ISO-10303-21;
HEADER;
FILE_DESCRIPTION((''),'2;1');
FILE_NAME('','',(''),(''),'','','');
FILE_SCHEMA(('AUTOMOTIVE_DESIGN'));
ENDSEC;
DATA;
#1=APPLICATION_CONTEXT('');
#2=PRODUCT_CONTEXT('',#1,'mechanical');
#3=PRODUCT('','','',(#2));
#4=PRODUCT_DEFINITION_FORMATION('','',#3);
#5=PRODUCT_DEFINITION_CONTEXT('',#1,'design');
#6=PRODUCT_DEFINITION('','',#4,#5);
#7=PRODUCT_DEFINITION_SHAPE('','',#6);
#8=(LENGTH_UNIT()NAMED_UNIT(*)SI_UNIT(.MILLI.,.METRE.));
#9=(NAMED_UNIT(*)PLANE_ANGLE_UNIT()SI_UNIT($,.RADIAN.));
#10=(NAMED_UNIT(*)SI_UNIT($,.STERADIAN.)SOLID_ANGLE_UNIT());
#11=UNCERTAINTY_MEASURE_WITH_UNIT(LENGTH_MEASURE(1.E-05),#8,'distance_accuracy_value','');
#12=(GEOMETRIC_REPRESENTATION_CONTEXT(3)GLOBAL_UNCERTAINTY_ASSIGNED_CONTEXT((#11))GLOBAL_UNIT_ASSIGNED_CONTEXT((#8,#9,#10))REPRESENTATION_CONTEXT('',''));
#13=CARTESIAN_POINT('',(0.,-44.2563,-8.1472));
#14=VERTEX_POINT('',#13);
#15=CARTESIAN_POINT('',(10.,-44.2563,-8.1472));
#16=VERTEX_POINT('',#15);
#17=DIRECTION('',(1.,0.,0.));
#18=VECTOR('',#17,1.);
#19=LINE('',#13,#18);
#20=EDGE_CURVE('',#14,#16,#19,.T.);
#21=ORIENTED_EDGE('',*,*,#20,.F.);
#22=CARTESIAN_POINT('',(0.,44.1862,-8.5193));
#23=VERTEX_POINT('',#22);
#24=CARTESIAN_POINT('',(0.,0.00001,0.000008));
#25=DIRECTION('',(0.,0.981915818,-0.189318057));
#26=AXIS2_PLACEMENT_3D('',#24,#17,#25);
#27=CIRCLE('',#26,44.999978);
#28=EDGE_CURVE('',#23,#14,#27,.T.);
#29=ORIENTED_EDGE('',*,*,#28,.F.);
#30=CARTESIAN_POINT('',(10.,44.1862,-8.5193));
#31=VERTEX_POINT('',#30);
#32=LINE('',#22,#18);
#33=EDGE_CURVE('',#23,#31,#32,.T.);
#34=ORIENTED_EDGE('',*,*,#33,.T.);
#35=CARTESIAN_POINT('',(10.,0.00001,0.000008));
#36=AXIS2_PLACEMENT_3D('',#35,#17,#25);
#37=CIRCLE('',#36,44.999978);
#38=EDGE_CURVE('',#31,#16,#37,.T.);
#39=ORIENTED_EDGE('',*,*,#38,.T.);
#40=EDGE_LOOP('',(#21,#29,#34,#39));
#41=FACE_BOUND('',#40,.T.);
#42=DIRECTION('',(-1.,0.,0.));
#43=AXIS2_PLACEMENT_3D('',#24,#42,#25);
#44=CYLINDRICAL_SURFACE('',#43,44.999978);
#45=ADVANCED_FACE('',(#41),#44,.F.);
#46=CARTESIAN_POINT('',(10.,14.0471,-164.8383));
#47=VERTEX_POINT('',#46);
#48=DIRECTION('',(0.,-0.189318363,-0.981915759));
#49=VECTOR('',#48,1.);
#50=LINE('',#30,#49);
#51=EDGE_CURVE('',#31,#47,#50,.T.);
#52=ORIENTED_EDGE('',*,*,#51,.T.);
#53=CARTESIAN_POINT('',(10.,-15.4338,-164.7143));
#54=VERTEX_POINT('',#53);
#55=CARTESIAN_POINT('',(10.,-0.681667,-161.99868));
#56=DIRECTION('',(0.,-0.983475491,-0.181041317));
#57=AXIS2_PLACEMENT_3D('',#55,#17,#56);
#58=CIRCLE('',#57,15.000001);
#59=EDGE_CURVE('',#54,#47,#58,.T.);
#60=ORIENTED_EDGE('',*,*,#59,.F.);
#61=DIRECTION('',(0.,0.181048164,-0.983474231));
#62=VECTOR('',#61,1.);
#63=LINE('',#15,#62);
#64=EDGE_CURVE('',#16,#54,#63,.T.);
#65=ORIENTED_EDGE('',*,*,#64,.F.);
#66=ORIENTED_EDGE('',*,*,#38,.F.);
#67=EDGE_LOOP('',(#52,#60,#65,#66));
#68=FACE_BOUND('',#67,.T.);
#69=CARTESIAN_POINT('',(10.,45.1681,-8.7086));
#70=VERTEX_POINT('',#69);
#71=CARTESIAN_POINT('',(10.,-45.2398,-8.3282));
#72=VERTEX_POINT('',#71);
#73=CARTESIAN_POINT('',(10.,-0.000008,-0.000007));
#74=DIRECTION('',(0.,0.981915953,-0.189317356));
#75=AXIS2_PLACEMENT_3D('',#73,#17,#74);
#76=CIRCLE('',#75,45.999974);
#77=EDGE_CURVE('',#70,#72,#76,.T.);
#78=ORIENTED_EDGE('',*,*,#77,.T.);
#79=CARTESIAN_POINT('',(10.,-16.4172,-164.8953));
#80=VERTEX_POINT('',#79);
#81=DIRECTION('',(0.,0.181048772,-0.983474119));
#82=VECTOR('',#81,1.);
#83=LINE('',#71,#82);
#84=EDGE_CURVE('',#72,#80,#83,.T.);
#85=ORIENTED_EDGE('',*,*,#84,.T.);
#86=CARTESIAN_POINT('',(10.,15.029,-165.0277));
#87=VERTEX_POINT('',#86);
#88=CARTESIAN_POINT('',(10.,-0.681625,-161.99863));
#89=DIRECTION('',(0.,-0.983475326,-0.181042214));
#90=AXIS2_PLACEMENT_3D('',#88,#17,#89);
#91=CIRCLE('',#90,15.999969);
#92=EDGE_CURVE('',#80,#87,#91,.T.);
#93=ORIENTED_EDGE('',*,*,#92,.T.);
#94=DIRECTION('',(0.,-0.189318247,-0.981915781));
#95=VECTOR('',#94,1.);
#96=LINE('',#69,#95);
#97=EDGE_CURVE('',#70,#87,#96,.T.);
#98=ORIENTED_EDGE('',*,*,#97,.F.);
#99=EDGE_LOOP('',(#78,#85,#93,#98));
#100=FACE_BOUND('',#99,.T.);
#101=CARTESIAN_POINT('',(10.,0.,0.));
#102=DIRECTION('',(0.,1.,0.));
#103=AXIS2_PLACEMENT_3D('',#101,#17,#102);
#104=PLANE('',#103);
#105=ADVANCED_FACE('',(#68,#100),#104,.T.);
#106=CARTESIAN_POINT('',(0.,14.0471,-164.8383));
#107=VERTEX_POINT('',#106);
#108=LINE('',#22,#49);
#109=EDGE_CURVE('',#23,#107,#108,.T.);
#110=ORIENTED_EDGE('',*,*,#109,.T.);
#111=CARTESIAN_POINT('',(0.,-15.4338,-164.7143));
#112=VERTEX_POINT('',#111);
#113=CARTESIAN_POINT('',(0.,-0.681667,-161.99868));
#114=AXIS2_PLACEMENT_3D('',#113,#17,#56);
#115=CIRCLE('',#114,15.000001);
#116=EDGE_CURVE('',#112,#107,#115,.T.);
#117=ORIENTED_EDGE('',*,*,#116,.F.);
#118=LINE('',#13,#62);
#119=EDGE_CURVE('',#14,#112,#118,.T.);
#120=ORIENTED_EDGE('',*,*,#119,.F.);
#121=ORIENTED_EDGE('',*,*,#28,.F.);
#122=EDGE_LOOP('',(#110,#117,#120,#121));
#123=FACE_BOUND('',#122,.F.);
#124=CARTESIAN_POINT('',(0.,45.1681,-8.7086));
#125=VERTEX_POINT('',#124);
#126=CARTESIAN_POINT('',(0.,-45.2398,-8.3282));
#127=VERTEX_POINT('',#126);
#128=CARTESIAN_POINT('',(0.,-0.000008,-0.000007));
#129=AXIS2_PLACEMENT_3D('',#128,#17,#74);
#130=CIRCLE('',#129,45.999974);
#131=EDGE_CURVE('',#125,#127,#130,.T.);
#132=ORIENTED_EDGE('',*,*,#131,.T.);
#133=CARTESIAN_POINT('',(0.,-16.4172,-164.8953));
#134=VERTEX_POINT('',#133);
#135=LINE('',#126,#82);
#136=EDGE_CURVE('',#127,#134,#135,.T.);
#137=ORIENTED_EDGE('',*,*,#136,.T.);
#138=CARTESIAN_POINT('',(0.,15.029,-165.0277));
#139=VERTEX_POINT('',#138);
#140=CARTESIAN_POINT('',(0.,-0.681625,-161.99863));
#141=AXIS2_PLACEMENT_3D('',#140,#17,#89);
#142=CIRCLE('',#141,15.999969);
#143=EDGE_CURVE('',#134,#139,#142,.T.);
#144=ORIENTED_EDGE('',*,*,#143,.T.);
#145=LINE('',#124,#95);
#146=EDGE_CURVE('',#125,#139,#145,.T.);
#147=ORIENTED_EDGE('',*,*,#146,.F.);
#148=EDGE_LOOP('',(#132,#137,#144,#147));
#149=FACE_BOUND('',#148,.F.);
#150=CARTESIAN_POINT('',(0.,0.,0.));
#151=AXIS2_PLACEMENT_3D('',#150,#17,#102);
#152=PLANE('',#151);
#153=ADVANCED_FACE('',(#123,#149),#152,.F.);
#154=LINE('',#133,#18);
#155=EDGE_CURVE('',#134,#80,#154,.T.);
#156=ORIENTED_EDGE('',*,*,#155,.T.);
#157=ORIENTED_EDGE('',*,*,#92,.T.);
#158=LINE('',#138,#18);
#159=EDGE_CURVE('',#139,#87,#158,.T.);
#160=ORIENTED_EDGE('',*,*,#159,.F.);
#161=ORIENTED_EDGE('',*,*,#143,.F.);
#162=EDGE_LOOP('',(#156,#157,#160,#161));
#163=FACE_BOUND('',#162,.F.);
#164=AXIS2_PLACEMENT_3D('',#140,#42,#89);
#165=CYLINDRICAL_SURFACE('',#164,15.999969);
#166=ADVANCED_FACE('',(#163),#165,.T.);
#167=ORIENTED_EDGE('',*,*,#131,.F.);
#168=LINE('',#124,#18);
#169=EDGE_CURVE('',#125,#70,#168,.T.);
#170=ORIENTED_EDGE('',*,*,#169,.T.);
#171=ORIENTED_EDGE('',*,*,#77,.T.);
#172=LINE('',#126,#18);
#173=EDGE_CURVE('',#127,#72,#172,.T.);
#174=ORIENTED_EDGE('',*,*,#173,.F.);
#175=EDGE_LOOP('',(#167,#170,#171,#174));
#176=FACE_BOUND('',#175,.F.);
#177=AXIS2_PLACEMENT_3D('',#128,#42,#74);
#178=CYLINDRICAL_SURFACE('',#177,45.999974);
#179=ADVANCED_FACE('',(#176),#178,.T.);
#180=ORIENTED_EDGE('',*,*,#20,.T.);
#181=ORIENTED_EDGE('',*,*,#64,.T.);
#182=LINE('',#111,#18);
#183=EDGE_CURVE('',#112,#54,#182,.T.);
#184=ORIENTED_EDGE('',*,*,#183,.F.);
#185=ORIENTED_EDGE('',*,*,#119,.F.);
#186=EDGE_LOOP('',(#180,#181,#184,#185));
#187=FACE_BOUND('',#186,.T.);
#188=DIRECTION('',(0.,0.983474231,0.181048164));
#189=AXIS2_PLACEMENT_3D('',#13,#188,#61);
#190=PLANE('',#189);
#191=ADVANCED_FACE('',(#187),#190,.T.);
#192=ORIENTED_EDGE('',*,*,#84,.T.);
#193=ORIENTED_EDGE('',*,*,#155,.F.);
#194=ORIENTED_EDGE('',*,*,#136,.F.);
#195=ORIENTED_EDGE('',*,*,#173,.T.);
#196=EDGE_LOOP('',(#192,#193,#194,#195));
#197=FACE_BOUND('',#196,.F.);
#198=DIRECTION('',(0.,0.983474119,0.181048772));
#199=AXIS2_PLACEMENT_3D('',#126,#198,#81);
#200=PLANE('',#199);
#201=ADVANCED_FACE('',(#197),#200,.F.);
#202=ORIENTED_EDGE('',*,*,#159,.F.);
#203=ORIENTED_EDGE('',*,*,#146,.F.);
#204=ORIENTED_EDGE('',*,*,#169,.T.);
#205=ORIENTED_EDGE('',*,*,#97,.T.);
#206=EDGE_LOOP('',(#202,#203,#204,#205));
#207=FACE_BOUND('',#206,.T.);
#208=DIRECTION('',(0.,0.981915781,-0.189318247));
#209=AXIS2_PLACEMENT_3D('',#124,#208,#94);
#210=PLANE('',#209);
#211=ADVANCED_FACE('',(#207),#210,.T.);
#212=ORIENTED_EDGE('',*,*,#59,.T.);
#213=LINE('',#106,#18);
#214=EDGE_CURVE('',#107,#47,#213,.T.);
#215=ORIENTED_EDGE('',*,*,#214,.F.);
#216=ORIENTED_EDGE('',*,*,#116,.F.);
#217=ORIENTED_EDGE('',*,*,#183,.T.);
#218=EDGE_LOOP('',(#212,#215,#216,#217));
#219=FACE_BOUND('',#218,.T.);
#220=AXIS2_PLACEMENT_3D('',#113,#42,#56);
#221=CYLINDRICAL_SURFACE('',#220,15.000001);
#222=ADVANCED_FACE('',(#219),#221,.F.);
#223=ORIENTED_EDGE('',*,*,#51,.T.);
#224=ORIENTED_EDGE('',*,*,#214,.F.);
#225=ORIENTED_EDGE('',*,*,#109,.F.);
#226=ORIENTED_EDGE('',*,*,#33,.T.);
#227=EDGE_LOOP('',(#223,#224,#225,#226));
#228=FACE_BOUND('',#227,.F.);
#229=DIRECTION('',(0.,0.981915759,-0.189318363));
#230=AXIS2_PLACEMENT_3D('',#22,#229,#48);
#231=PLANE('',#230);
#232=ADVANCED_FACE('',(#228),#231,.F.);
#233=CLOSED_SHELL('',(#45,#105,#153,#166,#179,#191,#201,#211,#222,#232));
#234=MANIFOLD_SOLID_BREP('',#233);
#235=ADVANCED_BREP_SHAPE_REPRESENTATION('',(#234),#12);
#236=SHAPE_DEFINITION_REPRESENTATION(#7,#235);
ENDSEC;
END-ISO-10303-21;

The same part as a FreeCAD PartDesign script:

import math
import FreeCAD as App
import Part
import Sketcher
from FreeCAD import Vector
Q = App.Units.Quantity

doc = App.newDocument("Part")
params = doc.addObject("Spreadsheet::Sheet", "Params")
for row, (alias, value) in enumerate([
    ("sketch1_radius", "46 mm"),
    ("sketch1_radius2", "16 mm"),
    ("sketch1_radius3", "45 mm"),
    ("pad1_length", "10 mm"),
], start=1):
    params.set(f"A{row}", alias)
    params.set(f"B{row}", "=" + value)
    params.setAlias(f"B{row}", alias)

body = doc.addObject("PartDesign::Body", "Body")

# Sketch on YZ plane
sketch1 = body.newObject("Sketcher::SketchObject", "Sketch")
sketch1.AttachmentSupport = (doc.getObject("YZ_Plane"), [""])
sketch1.MapMode = "FlatFace"
sketch1.addGeometry([
    Part.LineSegment(Vector(15, -165, 0), Vector(45, -9, 0)),  # 0
    Part.ArcOfCircle(Part.Circle(Vector(0, 0, 0), Vector(0, 0, 1), 46), math.radians(-11), math.radians(190)),  # 1
    Part.LineSegment(Vector(-45, -8, 0), Vector(-16, -165, 0)),  # 2
    Part.ArcOfCircle(Part.Circle(Vector(-1, -162, 0), Vector(0, 0, 1), 16), math.radians(-170), math.radians(-11)),  # 3
    Part.ArcOfCircle(Part.Circle(Vector(0, 0, 0), Vector(0, 0, 1), 45), math.radians(-11), math.radians(190)),  # 4
    Part.LineSegment(Vector(44, -9, 0), Vector(14, -165, 0)),  # 5
    Part.ArcOfCircle(Part.Circle(Vector(-1, -162, 0), Vector(0, 0, 1), 15), math.radians(-170), math.radians(-11)),  # 6
    Part.LineSegment(Vector(-15, -165, 0), Vector(-44, -8, 0)),  # 7
], False)
sketch1.addConstraint([
    Sketcher.Constraint("Tangent", 0, 2, 1, 1),
    Sketcher.Constraint("Tangent", 1, 2, 2, 1),
    Sketcher.Constraint("Tangent", 2, 2, 3, 1),
    Sketcher.Constraint("Tangent", 3, 2, 0, 1),
    Sketcher.Constraint("Tangent", 4, 1, 5, 1),
    Sketcher.Constraint("Tangent", 5, 2, 6, 2),
    Sketcher.Constraint("Tangent", 6, 1, 7, 1),
    Sketcher.Constraint("Tangent", 7, 2, 4, 2),
    Sketcher.Constraint("Coincident", 1, 3, -1, 1),
    Sketcher.Constraint("Coincident", 4, 3, -1, 1),
    Sketcher.Constraint("Coincident", 6, 3, 3, 3),
    Sketcher.Constraint("Parallel", 0, 5),
    Sketcher.Constraint("Radius", 1, Q("46 mm")),
    Sketcher.Constraint("Radius", 3, Q("16 mm")),
    Sketcher.Constraint("Radius", 4, Q("45 mm")),
    Sketcher.Constraint("Angle", 2, Q("-79.5691 deg")),
    Sketcher.Constraint("DistanceY", 3, 3, 0, 2, Q("153.29 mm")),
])
sketch1.setExpression("Constraints[12]", "Params.sketch1_radius")
sketch1.setExpression("Constraints[13]", "Params.sketch1_radius2")
sketch1.setExpression("Constraints[14]", "Params.sketch1_radius3")
pad1 = body.newObject("PartDesign::Pad", "Pad")
pad1.Profile = sketch1
pad1.setExpression("Length", "Params.pad1_length")

doc.recompute()
